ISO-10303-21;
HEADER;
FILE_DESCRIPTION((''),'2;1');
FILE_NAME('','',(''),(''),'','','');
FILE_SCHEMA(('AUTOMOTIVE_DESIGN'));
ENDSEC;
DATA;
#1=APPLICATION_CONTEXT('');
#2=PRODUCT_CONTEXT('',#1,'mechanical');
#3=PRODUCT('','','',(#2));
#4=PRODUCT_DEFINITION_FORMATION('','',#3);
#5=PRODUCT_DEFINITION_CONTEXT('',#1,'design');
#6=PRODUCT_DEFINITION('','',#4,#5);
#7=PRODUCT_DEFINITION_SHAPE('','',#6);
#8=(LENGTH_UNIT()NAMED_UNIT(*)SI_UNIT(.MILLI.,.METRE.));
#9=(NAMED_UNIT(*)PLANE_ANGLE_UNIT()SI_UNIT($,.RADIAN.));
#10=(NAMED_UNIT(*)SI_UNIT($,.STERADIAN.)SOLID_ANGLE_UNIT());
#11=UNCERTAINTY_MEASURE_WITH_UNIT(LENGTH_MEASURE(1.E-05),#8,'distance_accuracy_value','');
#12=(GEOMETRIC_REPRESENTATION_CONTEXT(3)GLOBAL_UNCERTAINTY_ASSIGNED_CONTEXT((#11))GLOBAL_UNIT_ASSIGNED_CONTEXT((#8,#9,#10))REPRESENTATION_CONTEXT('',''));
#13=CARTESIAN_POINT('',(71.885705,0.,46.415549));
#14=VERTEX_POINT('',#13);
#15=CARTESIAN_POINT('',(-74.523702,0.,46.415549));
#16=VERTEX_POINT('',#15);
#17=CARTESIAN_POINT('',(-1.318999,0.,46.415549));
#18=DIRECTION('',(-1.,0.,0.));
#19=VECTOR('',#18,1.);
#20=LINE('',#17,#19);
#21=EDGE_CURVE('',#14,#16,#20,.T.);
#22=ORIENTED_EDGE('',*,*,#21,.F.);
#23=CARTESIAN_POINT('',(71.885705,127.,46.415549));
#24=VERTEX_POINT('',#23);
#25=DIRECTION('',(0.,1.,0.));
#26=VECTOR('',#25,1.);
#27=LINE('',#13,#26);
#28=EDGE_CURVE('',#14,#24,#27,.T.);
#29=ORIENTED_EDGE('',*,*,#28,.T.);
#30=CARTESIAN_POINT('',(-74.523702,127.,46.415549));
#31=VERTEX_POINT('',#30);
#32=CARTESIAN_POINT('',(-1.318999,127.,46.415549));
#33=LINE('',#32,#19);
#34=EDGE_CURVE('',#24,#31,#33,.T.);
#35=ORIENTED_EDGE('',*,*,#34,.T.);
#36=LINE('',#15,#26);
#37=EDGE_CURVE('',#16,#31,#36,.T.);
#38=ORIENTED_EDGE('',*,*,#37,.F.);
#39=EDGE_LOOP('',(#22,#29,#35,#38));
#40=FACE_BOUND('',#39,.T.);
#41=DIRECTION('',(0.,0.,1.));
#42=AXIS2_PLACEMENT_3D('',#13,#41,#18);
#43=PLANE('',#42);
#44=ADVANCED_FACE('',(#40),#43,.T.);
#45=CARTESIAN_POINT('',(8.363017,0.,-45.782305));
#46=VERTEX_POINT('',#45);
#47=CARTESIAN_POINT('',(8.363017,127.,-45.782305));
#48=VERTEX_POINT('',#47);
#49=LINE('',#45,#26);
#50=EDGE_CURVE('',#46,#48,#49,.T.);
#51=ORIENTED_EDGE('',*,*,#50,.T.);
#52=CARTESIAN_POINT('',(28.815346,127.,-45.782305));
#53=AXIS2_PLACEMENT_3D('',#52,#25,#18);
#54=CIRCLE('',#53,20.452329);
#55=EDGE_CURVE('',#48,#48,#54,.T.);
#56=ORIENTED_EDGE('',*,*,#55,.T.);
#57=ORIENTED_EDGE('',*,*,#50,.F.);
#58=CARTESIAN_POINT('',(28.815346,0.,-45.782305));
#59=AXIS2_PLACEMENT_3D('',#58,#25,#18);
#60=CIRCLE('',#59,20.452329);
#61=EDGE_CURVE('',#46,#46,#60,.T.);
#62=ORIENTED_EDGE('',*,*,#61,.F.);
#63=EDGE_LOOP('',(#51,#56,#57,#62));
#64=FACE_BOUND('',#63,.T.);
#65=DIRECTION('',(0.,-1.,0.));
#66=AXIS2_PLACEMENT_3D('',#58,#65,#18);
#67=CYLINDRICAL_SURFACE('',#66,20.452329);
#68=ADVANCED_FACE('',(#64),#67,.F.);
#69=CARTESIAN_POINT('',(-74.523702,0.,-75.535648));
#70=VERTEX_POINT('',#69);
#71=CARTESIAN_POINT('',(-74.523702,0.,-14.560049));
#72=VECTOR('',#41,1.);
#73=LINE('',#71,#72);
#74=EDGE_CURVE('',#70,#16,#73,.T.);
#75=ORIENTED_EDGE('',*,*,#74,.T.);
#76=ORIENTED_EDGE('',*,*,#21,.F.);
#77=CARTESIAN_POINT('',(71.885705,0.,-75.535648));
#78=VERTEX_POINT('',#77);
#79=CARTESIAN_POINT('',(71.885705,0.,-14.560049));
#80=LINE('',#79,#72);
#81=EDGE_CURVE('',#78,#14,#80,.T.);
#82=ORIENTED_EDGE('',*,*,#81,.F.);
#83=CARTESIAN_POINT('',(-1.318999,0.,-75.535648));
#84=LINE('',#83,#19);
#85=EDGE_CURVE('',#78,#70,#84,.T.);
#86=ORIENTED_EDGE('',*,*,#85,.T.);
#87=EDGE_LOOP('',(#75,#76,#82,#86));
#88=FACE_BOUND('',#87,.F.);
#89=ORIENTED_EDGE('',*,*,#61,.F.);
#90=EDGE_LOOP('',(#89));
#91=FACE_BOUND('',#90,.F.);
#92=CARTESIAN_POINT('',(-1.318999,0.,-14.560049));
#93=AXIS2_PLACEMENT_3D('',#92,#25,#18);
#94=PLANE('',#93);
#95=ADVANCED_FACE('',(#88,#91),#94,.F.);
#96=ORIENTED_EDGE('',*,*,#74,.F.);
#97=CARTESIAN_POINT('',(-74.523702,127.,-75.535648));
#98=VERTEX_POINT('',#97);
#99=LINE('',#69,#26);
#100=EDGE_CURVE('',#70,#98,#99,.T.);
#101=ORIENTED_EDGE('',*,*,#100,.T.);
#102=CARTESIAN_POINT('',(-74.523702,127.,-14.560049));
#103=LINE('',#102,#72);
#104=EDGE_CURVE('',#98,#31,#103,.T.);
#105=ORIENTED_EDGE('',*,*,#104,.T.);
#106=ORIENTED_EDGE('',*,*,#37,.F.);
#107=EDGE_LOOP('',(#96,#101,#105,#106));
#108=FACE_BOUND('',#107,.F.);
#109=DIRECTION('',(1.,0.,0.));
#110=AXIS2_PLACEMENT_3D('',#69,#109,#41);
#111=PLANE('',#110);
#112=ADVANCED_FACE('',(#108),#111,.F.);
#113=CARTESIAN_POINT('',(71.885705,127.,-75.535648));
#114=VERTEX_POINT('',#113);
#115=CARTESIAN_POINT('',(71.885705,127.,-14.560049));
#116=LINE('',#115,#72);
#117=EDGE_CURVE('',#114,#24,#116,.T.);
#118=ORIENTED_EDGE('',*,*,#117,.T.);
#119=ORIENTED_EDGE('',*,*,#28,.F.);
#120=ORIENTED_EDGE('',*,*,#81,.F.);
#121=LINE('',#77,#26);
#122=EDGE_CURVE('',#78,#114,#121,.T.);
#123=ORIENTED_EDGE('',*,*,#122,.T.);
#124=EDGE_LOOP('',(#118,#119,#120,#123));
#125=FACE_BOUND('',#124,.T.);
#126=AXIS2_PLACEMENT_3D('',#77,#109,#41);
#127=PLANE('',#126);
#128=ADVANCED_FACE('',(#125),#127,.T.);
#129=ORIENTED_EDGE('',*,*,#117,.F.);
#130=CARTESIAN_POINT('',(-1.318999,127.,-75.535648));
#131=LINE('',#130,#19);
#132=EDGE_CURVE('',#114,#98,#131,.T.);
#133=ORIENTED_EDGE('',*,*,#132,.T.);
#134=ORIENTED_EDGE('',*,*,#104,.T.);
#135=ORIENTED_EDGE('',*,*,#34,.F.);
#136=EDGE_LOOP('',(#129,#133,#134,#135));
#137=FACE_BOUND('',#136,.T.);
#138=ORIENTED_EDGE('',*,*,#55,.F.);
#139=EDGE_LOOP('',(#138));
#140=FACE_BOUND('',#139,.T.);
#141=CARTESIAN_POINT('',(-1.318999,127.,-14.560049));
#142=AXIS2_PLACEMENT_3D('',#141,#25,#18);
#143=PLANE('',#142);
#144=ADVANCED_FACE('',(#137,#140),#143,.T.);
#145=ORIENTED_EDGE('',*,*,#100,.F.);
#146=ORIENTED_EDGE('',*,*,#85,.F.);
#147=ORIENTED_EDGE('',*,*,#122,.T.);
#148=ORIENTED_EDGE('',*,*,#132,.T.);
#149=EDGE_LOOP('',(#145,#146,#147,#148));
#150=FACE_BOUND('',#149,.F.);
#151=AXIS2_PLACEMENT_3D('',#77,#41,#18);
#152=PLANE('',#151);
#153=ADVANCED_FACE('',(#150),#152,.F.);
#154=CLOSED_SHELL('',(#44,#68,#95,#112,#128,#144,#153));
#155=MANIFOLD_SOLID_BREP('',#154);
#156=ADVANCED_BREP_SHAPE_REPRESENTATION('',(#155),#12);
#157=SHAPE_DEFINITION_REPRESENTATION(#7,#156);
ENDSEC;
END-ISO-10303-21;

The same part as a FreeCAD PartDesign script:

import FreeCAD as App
import Part
import Sketcher
from FreeCAD import Vector
Q = App.Units.Quantity

doc = App.newDocument("Part")
params = doc.addObject("Spreadsheet::Sheet", "Params")
for row, (alias, value) in enumerate([
    ("pad1_length", "5 in"),
    ("sketch2_diameter", "1 in"),
    ("hole_diameter", "1 in"),
    ("pad2_length", "5 in"),
], start=1):
    params.set(f"A{row}", alias)
    params.set(f"B{row}", "=" + value)
    params.setAlias(f"B{row}", alias)

body = doc.addObject("PartDesign::Body", "Body")

# Sketch on XZ plane
sketch1 = doc.addObject("Sketcher::SketchObject", "Sketch")
body.addObject(sketch1)
sketch1.AttachmentSupport = (doc.XZ_Plane, [""])
sketch1.MapMode = "FlatFace"
sketch1.addGeometry(Part.LineSegment(Vector(-74.523702, 46.415549, 0), Vector(-74.523702, -75.535648, 0)), False)
sketch1.addGeometry(Part.LineSegment(Vector(-74.523702, -75.535648, 0), Vector(71.885705, -75.535648, 0)), False)
sketch1.addGeometry(Part.LineSegment(Vector(71.885705, -75.535648, 0), Vector(71.885705, 46.415549, 0)), False)
sketch1.addGeometry(Part.LineSegment(Vector(71.885705, 46.415549, 0), Vector(-74.523702, 46.415549, 0)), False)
sketch1.addConstraint(Sketcher.Constraint("Coincident", 0, 2, 1, 1))
sketch1.addConstraint(Sketcher.Constraint("Coincident", 1, 2, 2, 1))
sketch1.addConstraint(Sketcher.Constraint("Coincident", 2, 2, 3, 1))
sketch1.addConstraint(Sketcher.Constraint("Coincident", 3, 2, 0, 1))
sketch1.addConstraint(Sketcher.Constraint("Vertical", 0))
sketch1.addConstraint(Sketcher.Constraint("Horizontal", 1))
sketch1.addConstraint(Sketcher.Constraint("Vertical", 2))
sketch1.addConstraint(Sketcher.Constraint("Horizontal", 3))
sketch1.addConstraint(Sketcher.Constraint("DistanceX", 1, 1, 1, 2, 146.409407))
sketch1.addConstraint(Sketcher.Constraint("DistanceY", 0, 2, 0, 1, 121.951196))
sketch1.addConstraint(Sketcher.Constraint("DistanceY", -1, 1, 2, 2, 46.415549))
sketch1.addConstraint(Sketcher.Constraint("DistanceX", 0, 2, -1, 1, 74.523702))
pad1 = doc.addObject("PartDesign::Pad", "Pad")
body.addObject(pad1)
pad1.Profile = sketch1
pad1.setExpression("Length", "Params.pad1_length")

# Sketch on XZ plane
sketch2 = doc.addObject("Sketcher::SketchObject", "Sketch001")
body.addObject(sketch2)
sketch2.AttachmentSupport = (doc.XZ_Plane, [""])
sketch2.MapMode = "FlatFace"
sketch2.addGeometry(Part.Circle(Vector(28.0631, -46.493053, 0), Vector(0, 0, 1), 12.7), False)
sketch2.addConstraint(Sketcher.Constraint("Diameter", 0, Q("1 in")))
sketch2.addConstraint(Sketcher.Constraint("DistanceX", -1, 1, 0, 3, 28.0631))
sketch2.addConstraint(Sketcher.Constraint("DistanceY", 0, 3, -1, 1, 46.493053))
sketch2.setExpression("Constraints[0]", "Params.sketch2_diameter")
doc.recompute()
hole = doc.addObject("PartDesign::Hole", "Hole")
body.addObject(hole)
hole.Profile = sketch2
hole.ThreadType = "None"
hole.setExpression("Diameter", "Params.hole_diameter")
hole.DepthType = "ThroughAll"
hole.Reversed = True
body2 = doc.addObject("PartDesign::Body", "Body001")

# Sketch on XZ plane
sketch3 = doc.addObject("Sketcher::SketchObject", "Sketch002")
body2.addObject(sketch3)
sketch3.AttachmentSupport = (doc.getObject("XZ_Plane001"), [""])
sketch3.MapMode = "FlatFace"
sketch3.addGeometry(Part.LineSegment(Vector(71.885705, 46.415549, 0), Vector(71.885705, -75.535648, 0)), False)
sketch3.addGeometry(Part.LineSegment(Vector(71.885705, -75.535648, 0), Vector(-74.523702, -75.535648, 0)), False)
sketch3.addGeometry(Part.LineSegment(Vector(-74.523702, -75.535648, 0), Vector(-74.523702, 46.415549, 0)), False)
sketch3.addGeometry(Part.LineSegment(Vector(-74.523702, 46.415549, 0), Vector(71.885705, 46.415549, 0)), False)
sketch3.addGeometry(Part.Circle(Vector(28.815346, -45.782305, 0), Vector(0, 0, 1), 20.452329), False)
sketch3.addConstraint(Sketcher.Constraint("Coincident", 0, 2, 1, 1))
sketch3.addConstraint(Sketcher.Constraint("Coincident", 1, 2, 2, 1))
sketch3.addConstraint(Sketcher.Constraint("Coincident", 2, 2, 3, 1))
sketch3.addConstraint(Sketcher.Constraint("Coincident", 3, 2, 0, 1))
sketch3.addConstraint(Sketcher.Constraint("Vertical", 0))
sketch3.addConstraint(Sketcher.Constraint("Horizontal", 1))
sketch3.addConstraint(Sketcher.Constraint("Vertical", 2))
sketch3.addConstraint(Sketcher.Constraint("Horizontal", 3))
sketch3.addConstraint(Sketcher.Constraint("Diameter", 4, 40.904659))
sketch3.addConstraint(Sketcher.Constraint("DistanceX", 1, 2, 1, 1, 146.409407))
sketch3.addConstraint(Sketcher.Constraint("DistanceY", 0, 2, 0, 1, 121.951196))
sketch3.addConstraint(Sketcher.Constraint("DistanceY", -1, 1, 2, 2, 46.415549))
sketch3.addConstraint(Sketcher.Constraint("DistanceX", 4, 3, 0, 2, 43.070359))
sketch3.addConstraint(Sketcher.Constraint("DistanceX", -1, 1, 4, 3, 28.815346))
sketch3.addConstraint(Sketcher.Constraint("DistanceY", 4, 3, -1, 1, 45.782305))
pad2 = doc.addObject("PartDesign::Pad", "Pad001")
body2.addObject(pad2)
pad2.Profile = sketch3
pad2.setExpression("Length", "Params.pad2_length")
pad2.Reversed = True
body.Visibility = False

doc.recompute()
